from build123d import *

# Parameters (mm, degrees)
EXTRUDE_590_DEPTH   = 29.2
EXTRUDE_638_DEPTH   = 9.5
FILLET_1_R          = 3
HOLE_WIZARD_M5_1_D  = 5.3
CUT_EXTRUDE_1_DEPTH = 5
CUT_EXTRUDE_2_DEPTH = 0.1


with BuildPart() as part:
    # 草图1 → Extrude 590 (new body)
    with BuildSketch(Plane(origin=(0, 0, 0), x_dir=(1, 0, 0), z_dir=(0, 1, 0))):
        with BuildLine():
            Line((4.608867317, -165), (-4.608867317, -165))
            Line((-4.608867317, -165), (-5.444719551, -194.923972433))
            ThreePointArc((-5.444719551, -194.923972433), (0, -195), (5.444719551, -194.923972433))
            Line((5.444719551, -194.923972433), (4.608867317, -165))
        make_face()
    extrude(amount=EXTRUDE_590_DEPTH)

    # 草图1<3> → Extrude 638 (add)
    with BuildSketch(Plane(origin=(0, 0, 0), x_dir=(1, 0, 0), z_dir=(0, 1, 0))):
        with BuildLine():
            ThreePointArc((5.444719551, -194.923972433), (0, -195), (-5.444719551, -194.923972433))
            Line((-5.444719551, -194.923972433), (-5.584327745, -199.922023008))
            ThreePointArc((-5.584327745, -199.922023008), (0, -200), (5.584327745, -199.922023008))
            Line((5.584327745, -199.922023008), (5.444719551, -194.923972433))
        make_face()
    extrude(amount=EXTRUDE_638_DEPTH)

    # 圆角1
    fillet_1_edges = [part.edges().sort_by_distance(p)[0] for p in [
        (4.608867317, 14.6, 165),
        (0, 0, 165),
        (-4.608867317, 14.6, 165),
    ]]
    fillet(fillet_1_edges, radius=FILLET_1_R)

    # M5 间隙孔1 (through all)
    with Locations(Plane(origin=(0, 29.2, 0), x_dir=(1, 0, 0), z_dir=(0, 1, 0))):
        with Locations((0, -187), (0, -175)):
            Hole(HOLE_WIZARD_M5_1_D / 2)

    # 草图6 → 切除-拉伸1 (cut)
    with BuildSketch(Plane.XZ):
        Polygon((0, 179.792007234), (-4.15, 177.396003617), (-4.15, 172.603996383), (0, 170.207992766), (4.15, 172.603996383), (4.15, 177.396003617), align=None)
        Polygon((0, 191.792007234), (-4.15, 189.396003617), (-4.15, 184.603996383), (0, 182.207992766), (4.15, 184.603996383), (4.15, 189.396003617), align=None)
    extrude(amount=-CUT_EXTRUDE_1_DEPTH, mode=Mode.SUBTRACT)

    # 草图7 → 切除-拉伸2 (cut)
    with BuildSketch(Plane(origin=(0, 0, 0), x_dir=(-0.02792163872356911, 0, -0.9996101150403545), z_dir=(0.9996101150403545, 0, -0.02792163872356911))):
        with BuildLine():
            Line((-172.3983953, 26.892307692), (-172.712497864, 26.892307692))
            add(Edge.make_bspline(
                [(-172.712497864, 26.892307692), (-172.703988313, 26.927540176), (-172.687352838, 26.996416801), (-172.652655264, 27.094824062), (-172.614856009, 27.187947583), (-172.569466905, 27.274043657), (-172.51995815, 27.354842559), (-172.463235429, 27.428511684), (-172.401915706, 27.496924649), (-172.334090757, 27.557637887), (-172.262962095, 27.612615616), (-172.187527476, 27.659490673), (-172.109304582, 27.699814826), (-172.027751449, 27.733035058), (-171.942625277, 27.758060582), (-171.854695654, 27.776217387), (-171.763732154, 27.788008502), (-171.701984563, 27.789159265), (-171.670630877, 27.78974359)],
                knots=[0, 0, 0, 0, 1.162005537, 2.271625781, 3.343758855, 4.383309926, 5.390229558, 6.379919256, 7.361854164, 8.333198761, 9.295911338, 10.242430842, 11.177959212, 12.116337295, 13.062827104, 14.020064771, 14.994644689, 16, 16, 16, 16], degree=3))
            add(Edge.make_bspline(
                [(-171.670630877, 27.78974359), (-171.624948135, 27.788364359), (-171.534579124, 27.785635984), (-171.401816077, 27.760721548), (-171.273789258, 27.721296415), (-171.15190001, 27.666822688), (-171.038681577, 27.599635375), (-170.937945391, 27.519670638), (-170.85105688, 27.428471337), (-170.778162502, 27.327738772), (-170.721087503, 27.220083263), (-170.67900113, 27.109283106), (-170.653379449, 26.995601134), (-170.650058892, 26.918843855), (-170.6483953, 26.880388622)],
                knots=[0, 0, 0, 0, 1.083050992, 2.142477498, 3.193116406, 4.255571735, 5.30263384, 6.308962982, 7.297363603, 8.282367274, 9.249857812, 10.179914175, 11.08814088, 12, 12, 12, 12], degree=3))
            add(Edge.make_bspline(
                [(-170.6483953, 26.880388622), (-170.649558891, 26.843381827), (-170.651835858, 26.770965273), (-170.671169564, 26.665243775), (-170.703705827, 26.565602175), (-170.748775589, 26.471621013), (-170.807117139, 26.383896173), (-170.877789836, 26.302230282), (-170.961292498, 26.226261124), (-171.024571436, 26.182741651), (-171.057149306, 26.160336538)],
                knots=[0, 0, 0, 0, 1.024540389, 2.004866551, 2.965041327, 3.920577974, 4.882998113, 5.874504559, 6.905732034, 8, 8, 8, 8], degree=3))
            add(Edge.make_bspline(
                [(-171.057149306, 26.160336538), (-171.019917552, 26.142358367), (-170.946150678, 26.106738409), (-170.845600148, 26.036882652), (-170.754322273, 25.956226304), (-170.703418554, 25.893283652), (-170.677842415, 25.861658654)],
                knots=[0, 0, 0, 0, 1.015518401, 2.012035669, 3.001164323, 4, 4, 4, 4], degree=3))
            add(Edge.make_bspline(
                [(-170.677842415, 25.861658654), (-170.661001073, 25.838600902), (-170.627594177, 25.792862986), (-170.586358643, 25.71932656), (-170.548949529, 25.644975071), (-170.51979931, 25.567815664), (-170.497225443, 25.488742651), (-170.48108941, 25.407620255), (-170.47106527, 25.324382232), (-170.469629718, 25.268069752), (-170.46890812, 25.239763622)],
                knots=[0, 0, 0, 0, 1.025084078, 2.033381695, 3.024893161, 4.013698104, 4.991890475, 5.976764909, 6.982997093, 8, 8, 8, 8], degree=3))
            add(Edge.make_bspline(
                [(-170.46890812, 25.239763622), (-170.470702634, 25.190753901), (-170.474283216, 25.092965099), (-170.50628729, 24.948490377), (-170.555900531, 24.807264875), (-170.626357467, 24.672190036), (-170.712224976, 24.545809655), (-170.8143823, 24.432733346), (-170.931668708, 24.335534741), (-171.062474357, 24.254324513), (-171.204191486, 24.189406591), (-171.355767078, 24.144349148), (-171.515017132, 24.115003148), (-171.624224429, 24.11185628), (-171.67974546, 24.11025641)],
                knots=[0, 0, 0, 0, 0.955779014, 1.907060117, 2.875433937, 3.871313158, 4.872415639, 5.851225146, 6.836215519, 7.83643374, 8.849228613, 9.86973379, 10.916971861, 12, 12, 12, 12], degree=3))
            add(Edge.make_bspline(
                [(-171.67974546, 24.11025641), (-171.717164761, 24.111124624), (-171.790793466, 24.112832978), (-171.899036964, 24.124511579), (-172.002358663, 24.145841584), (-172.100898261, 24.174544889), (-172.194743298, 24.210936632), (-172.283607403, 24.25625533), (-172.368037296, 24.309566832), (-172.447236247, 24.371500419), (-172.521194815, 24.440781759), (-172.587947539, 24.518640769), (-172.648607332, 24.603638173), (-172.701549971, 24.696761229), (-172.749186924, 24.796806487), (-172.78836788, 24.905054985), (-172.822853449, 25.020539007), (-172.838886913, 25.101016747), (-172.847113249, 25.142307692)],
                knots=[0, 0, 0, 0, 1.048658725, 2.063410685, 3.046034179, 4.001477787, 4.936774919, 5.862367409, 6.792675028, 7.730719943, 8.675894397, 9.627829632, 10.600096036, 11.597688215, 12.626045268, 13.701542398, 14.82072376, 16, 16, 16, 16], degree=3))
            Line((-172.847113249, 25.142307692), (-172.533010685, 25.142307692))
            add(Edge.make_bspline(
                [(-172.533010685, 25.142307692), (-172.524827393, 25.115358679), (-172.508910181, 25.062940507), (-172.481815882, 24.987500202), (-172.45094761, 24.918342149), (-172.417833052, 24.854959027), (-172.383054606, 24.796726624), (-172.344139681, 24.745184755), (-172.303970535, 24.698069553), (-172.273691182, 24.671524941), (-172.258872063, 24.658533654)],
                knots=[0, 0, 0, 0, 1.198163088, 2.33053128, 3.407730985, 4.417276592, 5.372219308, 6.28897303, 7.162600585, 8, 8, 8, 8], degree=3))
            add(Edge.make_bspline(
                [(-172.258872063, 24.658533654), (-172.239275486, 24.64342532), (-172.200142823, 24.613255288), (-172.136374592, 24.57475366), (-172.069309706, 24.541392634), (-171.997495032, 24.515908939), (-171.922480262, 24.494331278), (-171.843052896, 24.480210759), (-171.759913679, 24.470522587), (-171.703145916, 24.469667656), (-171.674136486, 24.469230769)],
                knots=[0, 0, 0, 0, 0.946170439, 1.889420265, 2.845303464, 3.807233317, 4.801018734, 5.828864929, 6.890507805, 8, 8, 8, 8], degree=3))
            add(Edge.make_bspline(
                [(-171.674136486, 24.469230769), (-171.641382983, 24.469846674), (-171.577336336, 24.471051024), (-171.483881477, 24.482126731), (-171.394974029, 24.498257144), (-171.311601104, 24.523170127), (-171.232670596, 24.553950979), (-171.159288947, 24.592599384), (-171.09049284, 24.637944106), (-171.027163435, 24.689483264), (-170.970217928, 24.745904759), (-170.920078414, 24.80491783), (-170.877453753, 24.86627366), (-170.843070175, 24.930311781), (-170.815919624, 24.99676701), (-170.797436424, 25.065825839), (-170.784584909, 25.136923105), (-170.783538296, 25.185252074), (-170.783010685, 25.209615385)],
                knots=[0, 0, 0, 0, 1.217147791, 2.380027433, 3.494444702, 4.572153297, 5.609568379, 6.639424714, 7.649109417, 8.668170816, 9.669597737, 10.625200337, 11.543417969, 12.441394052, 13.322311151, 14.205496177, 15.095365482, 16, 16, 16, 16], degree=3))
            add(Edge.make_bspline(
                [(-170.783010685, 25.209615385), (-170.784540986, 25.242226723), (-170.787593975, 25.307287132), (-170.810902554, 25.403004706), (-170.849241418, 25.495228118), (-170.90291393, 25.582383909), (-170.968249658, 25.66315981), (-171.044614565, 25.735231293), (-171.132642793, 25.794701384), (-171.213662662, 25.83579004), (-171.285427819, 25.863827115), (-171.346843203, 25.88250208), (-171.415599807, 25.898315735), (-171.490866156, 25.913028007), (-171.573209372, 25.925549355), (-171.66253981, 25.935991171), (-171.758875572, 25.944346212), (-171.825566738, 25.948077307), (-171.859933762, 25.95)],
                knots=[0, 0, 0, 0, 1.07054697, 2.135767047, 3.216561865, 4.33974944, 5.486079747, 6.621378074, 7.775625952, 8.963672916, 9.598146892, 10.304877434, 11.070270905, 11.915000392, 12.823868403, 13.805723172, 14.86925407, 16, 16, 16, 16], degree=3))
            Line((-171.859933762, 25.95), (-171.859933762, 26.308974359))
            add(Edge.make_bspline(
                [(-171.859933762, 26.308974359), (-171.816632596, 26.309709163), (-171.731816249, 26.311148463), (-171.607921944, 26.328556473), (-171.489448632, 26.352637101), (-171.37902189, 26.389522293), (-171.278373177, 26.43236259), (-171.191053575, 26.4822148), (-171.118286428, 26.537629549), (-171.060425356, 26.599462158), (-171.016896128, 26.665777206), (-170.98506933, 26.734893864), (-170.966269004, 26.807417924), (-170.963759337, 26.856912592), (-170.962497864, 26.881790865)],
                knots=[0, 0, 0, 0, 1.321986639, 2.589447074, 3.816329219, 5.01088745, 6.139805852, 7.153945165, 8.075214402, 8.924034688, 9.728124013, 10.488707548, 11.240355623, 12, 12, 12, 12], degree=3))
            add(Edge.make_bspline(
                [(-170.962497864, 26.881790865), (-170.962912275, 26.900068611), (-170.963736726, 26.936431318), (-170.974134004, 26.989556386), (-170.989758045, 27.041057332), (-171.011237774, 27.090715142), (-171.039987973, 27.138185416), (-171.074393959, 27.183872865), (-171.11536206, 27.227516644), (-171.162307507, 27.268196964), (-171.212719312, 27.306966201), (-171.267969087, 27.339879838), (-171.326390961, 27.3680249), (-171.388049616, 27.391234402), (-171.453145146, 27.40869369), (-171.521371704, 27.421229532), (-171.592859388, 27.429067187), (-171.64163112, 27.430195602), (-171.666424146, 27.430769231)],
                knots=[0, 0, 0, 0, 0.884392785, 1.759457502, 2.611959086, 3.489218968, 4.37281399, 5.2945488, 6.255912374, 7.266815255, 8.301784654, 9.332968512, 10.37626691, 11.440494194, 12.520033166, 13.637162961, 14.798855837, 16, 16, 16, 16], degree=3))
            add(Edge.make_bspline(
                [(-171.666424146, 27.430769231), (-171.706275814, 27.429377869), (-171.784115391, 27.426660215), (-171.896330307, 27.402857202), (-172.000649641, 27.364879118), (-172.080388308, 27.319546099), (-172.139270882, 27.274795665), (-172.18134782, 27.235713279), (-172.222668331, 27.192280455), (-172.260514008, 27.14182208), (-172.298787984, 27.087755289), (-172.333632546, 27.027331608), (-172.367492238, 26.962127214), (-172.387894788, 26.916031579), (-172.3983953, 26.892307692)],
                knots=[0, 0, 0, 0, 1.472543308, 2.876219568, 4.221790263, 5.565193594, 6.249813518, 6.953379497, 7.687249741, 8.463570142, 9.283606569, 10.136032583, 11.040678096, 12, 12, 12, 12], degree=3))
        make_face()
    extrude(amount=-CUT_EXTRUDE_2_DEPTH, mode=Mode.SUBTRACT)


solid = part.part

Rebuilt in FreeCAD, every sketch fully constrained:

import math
import FreeCAD as App
import Part
import Sketcher
Q = App.Units.Quantity


def edges_at(feature, points):
    """Names of the edges that pass closest to the given points."""
    edges = feature.Shape.Edges
    near = lambda p: min(range(len(edges)), key=lambda i: edges[i].distToShape(Part.Vertex(*p))[0])
    return sorted({f"Edge{near(p) + 1}" for p in points})


def add_polygon(sketch, points):
    """Adds a closed chain of lines whose ends are joined by coincident constraints."""
    first, n = sketch.GeometryCount, len(points)
    for a, b in zip(points, points[1:] + points[:1]):
        sketch.addGeometry(Part.LineSegment(App.Vector(*a, 0), App.Vector(*b, 0)), False)
    for i in range(n):
        sketch.addConstraint(Sketcher.Constraint("Coincident", first + i, 2, first + (i + 1) % n, 1))

doc = App.newDocument("Part")
body = doc.addObject("PartDesign::Body", "Body")

sketch1 = body.newObject("Sketcher::SketchObject", "Sketch")
sketch1.AttachmentSupport = (doc.getObject("XZ_Plane"), [""])
sketch1.MapMode = "FlatFace"
sketch1.addGeometry([
    Part.LineSegment(App.Vector(4.608867, 165, 0), App.Vector(-4.608867, 165, 0)),
    Part.LineSegment(App.Vector(-4.608867, 165, 0), App.Vector(-5.44472, 194.923972, 0)),
    Part.ArcOfCircle(Part.Circle(App.Vector(0, 0, 0), App.Vector(0, 0, 1), 195), math.radians(88.4), math.radians(91.6)),
    Part.LineSegment(App.Vector(5.44472, 194.923972, 0), App.Vector(4.608867, 165, 0)),
], False)
sketch1.addConstraint([
    Sketcher.Constraint("Coincident", 0, 2, 1, 1),
    Sketcher.Constraint("Coincident", 1, 2, 2, 2),
    Sketcher.Constraint("Coincident", 2, 1, 3, 1),
    Sketcher.Constraint("Coincident", 3, 2, 0, 1),
    Sketcher.Constraint("Horizontal", 0),
    Sketcher.Constraint("Coincident", 2, 3, -1, 1),
    Sketcher.Constraint("Horizontal", 1, 2, 2, 1),
    Sketcher.Constraint("Equal", 1, 3),
    Sketcher.Constraint("Radius", 2, Q("195 mm")),
    Sketcher.Constraint("DistanceY", -1, 1, 0, 2, Q("165 mm")),
    Sketcher.Constraint("Angle", 1, Q("91.6 deg")),
    Sketcher.Constraint("DistanceX", 0, 2, 0, 1, Q("9.217735 mm")),
])
pad1 = body.newObject("PartDesign::Pad", "Pad")
pad1.Profile = sketch1
pad1.Length = 29.2
pad1.Reversed = True

sketch2 = body.newObject("Sketcher::SketchObject", "Sketch001")
sketch2.AttachmentSupport = (doc.getObject("XZ_Plane"), [""])
sketch2.MapMode = "FlatFace"
sketch2.addGeometry([
    Part.ArcOfCircle(Part.Circle(App.Vector(0, 0, 0), App.Vector(0, 0, 1), 195), math.radians(88.4), math.radians(91.6)),
    Part.LineSegment(App.Vector(-5.4, 194.9, 0), App.Vector(-5.6, 199.9, 0)),
    Part.ArcOfCircle(Part.Circle(App.Vector(0, 0, 0), App.Vector(0, 0, 1), 200), math.radians(88.4), math.radians(91.6)),
    Part.LineSegment(App.Vector(5.6, 199.9, 0), App.Vector(5.4, 194.9, 0)),
], False)
sketch2.addConstraint([
    Sketcher.Constraint("Coincident", 0, 2, 1, 1),
    Sketcher.Constraint("Coincident", 1, 2, 2, 2),
    Sketcher.Constraint("Coincident", 2, 1, 3, 1),
    Sketcher.Constraint("Coincident", 3, 2, 0, 1),
    Sketcher.Constraint("Coincident", 0, 3, -1, 1),
    Sketcher.Constraint("Coincident", 2, 3, -1, 1),
    Sketcher.Constraint("Horizontal", 1, 2, 2, 1),
    Sketcher.Constraint("Horizontal", 0, 2, 3, 2),
    Sketcher.Constraint("Radius", 0, Q("195 mm")),
    Sketcher.Constraint("Radius", 2, Q("200 mm")),
    Sketcher.Constraint("Angle", 1, Q("91.6 deg")),
    Sketcher.Constraint("DistanceX", 0, 2, -1, 1, Q("5.44472 mm")),
])
pad2 = body.newObject("PartDesign::Pad", "Pad001")
pad2.Profile = sketch2
pad2.Length = 9.5
pad2.Reversed = True
doc.recompute()

fillet = body.newObject("PartDesign::Fillet", "Fillet")
fillet.Base = (pad2, edges_at(pad2, [(4.609, 14.6, 165), (0, 0, 165), (-4.609, 14.6, 165)]))
fillet.Radius = 3

sketch3 = body.newObject("Sketcher::SketchObject", "Sketch002")
sketch3.AttachmentSupport = (doc.getObject("XZ_Plane"), [""])
sketch3.MapMode = "FlatFace"
sketch3.AttachmentOffset = App.Placement(App.Vector(0, 0, -29.2), App.Rotation())
sketch3.addGeometry([
    Part.Circle(App.Vector(0, 187, 0), App.Vector(0, 0, 1), 2.6),
    Part.Circle(App.Vector(0, 175, 0), App.Vector(0, 0, 1), 2.6),
], False)
sketch3.addConstraint([
    Sketcher.Constraint("Equal", 0, 1),
    Sketcher.Constraint("PointOnObject", 0, 3, -2),
    Sketcher.Constraint("PointOnObject", 1, 3, -2),
    Sketcher.Constraint("Diameter", 0, Q("5.3 mm")),
    Sketcher.Constraint("DistanceY", -1, 1, 0, 3, Q("187 mm")),
    Sketcher.Constraint("DistanceY", -1, 1, 1, 3, Q("175 mm")),
])
doc.recompute()
hole = body.newObject("PartDesign::Hole", "Hole")
hole.Profile = sketch3
hole.ThreadType = "None"
hole.Diameter = 5.3
hole.DepthType = "ThroughAll"
hole.Reversed = True

sketch4 = body.newObject("Sketcher::SketchObject", "Sketch003")
sketch4.AttachmentSupport = (doc.getObject("XZ_Plane"), [""])
sketch4.MapMode = "FlatFace"
add_polygon(sketch4, [(0, 179.8), (-4.2, 177.4), (-4.2, 172.6), (0, 170.2), (4.2, 172.6), (4.2, 177.4)])
add_polygon(sketch4, [(0, 191.8), (-4.2, 189.4), (-4.2, 184.6), (0, 182.2), (4.2, 184.6), (4.2, 189.4)])
sketch4.addConstraint([
    Sketcher.Constraint("Vertical", 1),
    Sketcher.Constraint("Vertical", 4),
    Sketcher.Constraint("Vertical", 7),
    Sketcher.Constraint("Vertical", 10),
    Sketcher.Constraint("Symmetric", 1, 2, 3, 2, -2),
    Sketcher.Constraint("Symmetric", 7, 2, 9, 2, -2),
    Sketcher.Constraint("PointOnObject", 2, 2, -2),
    Sketcher.Constraint("PointOnObject", 5, 2, -2),
    Sketcher.Constraint("PointOnObject", 8, 2, -2),
    Sketcher.Constraint("PointOnObject", 11, 2, -2),
    Sketcher.Constraint("Parallel", 0, 3),
    Sketcher.Constraint("Parallel", 2, 5),
    Sketcher.Constraint("Parallel", 3, 6),
    Sketcher.Constraint("Parallel", 5, 8),
    Sketcher.Constraint("Parallel", 8, 11),
    Sketcher.Constraint("Vertical", 1, 2, 6, 2),
    Sketcher.Constraint("Equal", 4, 7),
    Sketcher.Constraint("Angle", 0, Q("-150 deg")),
    Sketcher.Constraint("DistanceY", 0, 2, 6, 2, Q("12 mm")),
    Sketcher.Constraint("DistanceX", 1, 2, 3, 2, Q("8.3 mm")),
    Sketcher.Constraint("DistanceY", 1, 2, 1, 1, Q("4.792007 mm")),
    Sketcher.Constraint("DistanceY", -1, 1, 0, 2, Q("177.396004 mm")),
])
pocket1 = body.newObject("PartDesign::Pocket", "Pocket")
pocket1.Profile = sketch4
pocket1.Length = 5

sketch5 = body.newObject("Sketcher::SketchObject", "Sketch004")
sketch5.Placement = App.Placement(App.Vector(0, 0, 0), App.Rotation(App.Vector(-0.027921639, 0, -0.999610115), App.Vector(0, 1, 0), App.Vector(0.999610115, 0, -0.027921639), "ZXY"))
sketch5.addGeometry([
    Part.LineSegment(App.Vector(-172.712498, 26.892308, 0), App.Vector(-172.398395, 26.892308, 0)),
    Part.BSplineCurve([App.Vector(-171.666424, 27.430769, 0), App.Vector(-171.706276, 27.429378, 0), App.Vector(-171.784115, 27.42666, 0), App.Vector(-171.89633, 27.402857, 0), App.Vector(-172.00065, 27.364879, 0), App.Vector(-172.080388, 27.319546, 0), App.Vector(-172.139271, 27.274796, 0), App.Vector(-172.181348, 27.235713, 0), App.Vector(-172.222668, 27.19228, 0), App.Vector(-172.260514, 27.141822, 0), App.Vector(-172.298788, 27.087755, 0), App.Vector(-172.333633, 27.027332, 0), App.Vector(-172.367492, 26.962127, 0), App.Vector(-172.387895, 26.916032, 0), App.Vector(-172.398395, 26.892308, 0)], [4, 1, 1, 1, 1, 1, 1, 1, 1, 1, 1, 1, 4], [0, 1.472543308, 2.876219568, 4.221790263, 5.565193594, 6.249813518, 6.953379497, 7.687249741, 8.463570142, 9.283606569, 10.136032583, 11.040678096, 12], False, 3, [1, 1, 1, 1, 1, 1, 1, 1, 1, 1, 1, 1, 1, 1, 1], False),
    Part.BSplineCurve([App.Vector(-170.962498, 26.881791, 0), App.Vector(-170.962912, 26.900069, 0), App.Vector(-170.963737, 26.936431, 0), App.Vector(-170.974134, 26.989556, 0), App.Vector(-170.989758, 27.041057, 0), App.Vector(-171.011238, 27.090715, 0), App.Vector(-171.039988, 27.138185, 0), App.Vector(-171.074394, 27.183873, 0), App.Vector(-171.115362, 27.227517, 0), App.Vector(-171.162307, 27.268197, 0), App.Vector(-171.212719, 27.306966, 0), App.Vector(-171.267969, 27.33988, 0), App.Vector(-171.326391, 27.368025, 0), App.Vector(-171.38805, 27.391234, 0), App.Vector(-171.453145, 27.408694, 0), App.Vector(-171.521372, 27.42123, 0), App.Vector(-171.592859, 27.429067, 0), App.Vector(-171.641631, 27.430196, 0), App.Vector(-171.666424, 27.430769, 0)], [4, 1, 1, 1, 1, 1, 1, 1, 1, 1, 1, 1, 1, 1, 1, 1, 4], [0, 0.884392785, 1.759457502, 2.611959086, 3.489218968, 4.37281399, 5.2945488, 6.255912374, 7.266815255, 8.301784654, 9.332968512, 10.37626691, 11.440494194, 12.520033166, 13.637162961, 14.798855837, 16], False, 3, [1, 1, 1, 1, 1, 1, 1, 1, 1, 1, 1, 1, 1, 1, 1, 1, 1, 1, 1], False),
    Part.BSplineCurve([App.Vector(-171.859934, 26.308974, 0), App.Vector(-171.816633, 26.309709, 0), App.Vector(-171.731816, 26.311148, 0), App.Vector(-171.607922, 26.328556, 0), App.Vector(-171.489449, 26.352637, 0), App.Vector(-171.379022, 26.389522, 0), App.Vector(-171.278373, 26.432363, 0), App.Vector(-171.191054, 26.482215, 0), App.Vector(-171.118286, 26.53763, 0), App.Vector(-171.060425, 26.599462, 0), App.Vector(-171.016896, 26.665777, 0), App.Vector(-170.985069, 26.734894, 0), App.Vector(-170.966269, 26.807418, 0), App.Vector(-170.963759, 26.856913, 0), App.Vector(-170.962498, 26.881791, 0)], [4, 1, 1, 1, 1, 1, 1, 1, 1, 1, 1, 1, 4], [0, 1.321986639, 2.589447074, 3.816329219, 5.01088745, 6.139805852, 7.153945165, 8.075214402, 8.924034688, 9.728124013, 10.488707548, 11.240355623, 12], False, 3, [1, 1, 1, 1, 1, 1, 1, 1, 1, 1, 1, 1, 1, 1, 1], False),
    Part.LineSegment(App.Vector(-171.859934, 26.308974, 0), App.Vector(-171.859934, 25.95, 0)),
    Part.BSplineCurve([App.Vector(-170.783011, 25.209615, 0), App.Vector(-170.784541, 25.242227, 0), App.Vector(-170.787594, 25.307287, 0), App.Vector(-170.810903, 25.403005, 0), App.Vector(-170.849241, 25.495228, 0), App.Vector(-170.902914, 25.582384, 0), App.Vector(-170.96825, 25.66316, 0), App.Vector(-171.044615, 25.735231, 0), App.Vector(-171.132643, 25.794701, 0), App.Vector(-171.213663, 25.83579, 0), App.Vector(-171.285428, 25.863827, 0), App.Vector(-171.346843, 25.882502, 0), App.Vector(-171.4156, 25.898316, 0), App.Vector(-171.490866, 25.913028, 0), App.Vector(-171.573209, 25.925549, 0), App.Vector(-171.66254, 25.935991, 0), App.Vector(-171.758876, 25.944346, 0), App.Vector(-171.825567, 25.948077, 0), App.Vector(-171.859934, 25.95, 0)], [4, 1, 1, 1, 1, 1, 1, 1, 1, 1, 1, 1, 1, 1, 1, 1, 4], [0, 1.07054697, 2.135767047, 3.216561865, 4.33974944, 5.486079747, 6.621378074, 7.775625952, 8.963672916, 9.598146892, 10.304877434, 11.070270905, 11.915000392, 12.823868403, 13.805723172, 14.86925407, 16], False, 3, [1, 1, 1, 1, 1, 1, 1, 1, 1, 1, 1, 1, 1, 1, 1, 1, 1, 1, 1], False),
    Part.BSplineCurve([App.Vector(-171.674136, 24.469231, 0), App.Vector(-171.641383, 24.469847, 0), App.Vector(-171.577336, 24.471051, 0), App.Vector(-171.483881, 24.482127, 0), App.Vector(-171.394974, 24.498257, 0), App.Vector(-171.311601, 24.52317, 0), App.Vector(-171.232671, 24.553951, 0), App.Vector(-171.159289, 24.592599, 0), App.Vector(-171.090493, 24.637944, 0), App.Vector(-171.027163, 24.689483, 0), App.Vector(-170.970218, 24.745905, 0), App.Vector(-170.920078, 24.804918, 0), App.Vector(-170.877454, 24.866274, 0), App.Vector(-170.84307, 24.930312, 0), App.Vector(-170.81592, 24.996767, 0), App.Vector(-170.797436, 25.065826, 0), App.Vector(-170.784585, 25.136923, 0), App.Vector(-170.783538, 25.185252, 0), App.Vector(-170.783011, 25.209615, 0)], [4, 1, 1, 1, 1, 1, 1, 1, 1, 1, 1, 1, 1, 1, 1, 1, 4], [0, 1.217147791, 2.380027433, 3.494444702, 4.572153297, 5.609568379, 6.639424714, 7.649109417, 8.668170816, 9.669597737, 10.625200337, 11.543417969, 12.441394052, 13.322311151, 14.205496177, 15.095365482, 16], False, 3, [1, 1, 1, 1, 1, 1, 1, 1, 1, 1, 1, 1, 1, 1, 1, 1, 1, 1, 1], False),
    Part.BSplineCurve([App.Vector(-172.258872, 24.658534, 0), App.Vector(-172.239275, 24.643425, 0), App.Vector(-172.200143, 24.613255, 0), App.Vector(-172.136375, 24.574754, 0), App.Vector(-172.06931, 24.541393, 0), App.Vector(-171.997495, 24.515909, 0), App.Vector(-171.92248, 24.494331, 0), App.Vector(-171.843053, 24.480211, 0), App.Vector(-171.759914, 24.470523, 0), App.Vector(-171.703146, 24.469668, 0), App.Vector(-171.674136, 24.469231, 0)], [4, 1, 1, 1, 1, 1, 1, 1, 4], [0, 0.946170439, 1.889420265, 2.845303464, 3.807233317, 4.801018734, 5.828864929, 6.890507805, 8], False, 3, [1, 1, 1, 1, 1, 1, 1, 1, 1, 1, 1], False),
    Part.BSplineCurve([App.Vector(-172.533011, 25.142308, 0), App.Vector(-172.524827, 25.115359, 0), App.Vector(-172.50891, 25.062941, 0), App.Vector(-172.481816, 24.9875, 0), App.Vector(-172.450948, 24.918342, 0), App.Vector(-172.417833, 24.854959, 0), App.Vector(-172.383055, 24.796727, 0), App.Vector(-172.34414, 24.745185, 0), App.Vector(-172.303971, 24.69807, 0), App.Vector(-172.273691, 24.671525, 0), App.Vector(-172.258872, 24.658534, 0)], [4, 1, 1, 1, 1, 1, 1, 1, 4], [0, 1.198163088, 2.33053128, 3.407730985, 4.417276592, 5.372219308, 6.28897303, 7.162600585, 8], False, 3, [1, 1, 1, 1, 1, 1, 1, 1, 1, 1, 1], False),
    Part.LineSegment(App.Vector(-172.533011, 25.142308, 0), App.Vector(-172.847113, 25.142308, 0)),
    Part.BSplineCurve([App.Vector(-171.679745, 24.110256, 0), App.Vector(-171.717165, 24.111125, 0), App.Vector(-171.790793, 24.112833, 0), App.Vector(-171.899037, 24.124512, 0), App.Vector(-172.002359, 24.145842, 0), App.Vector(-172.100898, 24.174545, 0), App.Vector(-172.194743, 24.210937, 0), App.Vector(-172.283607, 24.256255, 0), App.Vector(-172.368037, 24.309567, 0), App.Vector(-172.447236, 24.3715, 0), App.Vector(-172.521195, 24.440782, 0), App.Vector(-172.587948, 24.518641, 0), App.Vector(-172.648607, 24.603638, 0), App.Vector(-172.70155, 24.696761, 0), App.Vector(-172.749187, 24.796806, 0), App.Vector(-172.788368, 24.905055, 0), App.Vector(-172.822853, 25.020539, 0), App.Vector(-172.838887, 25.101017, 0), App.Vector(-172.847113, 25.142308, 0)], [4, 1, 1, 1, 1, 1, 1, 1, 1, 1, 1, 1, 1, 1, 1, 1, 4], [0, 1.048658725, 2.063410685, 3.046034179, 4.001477787, 4.936774919, 5.862367409, 6.792675028, 7.730719943, 8.675894397, 9.627829632, 10.600096036, 11.597688215, 12.626045268, 13.701542398, 14.82072376, 16], False, 3, [1, 1, 1, 1, 1, 1, 1, 1, 1, 1, 1, 1, 1, 1, 1, 1, 1, 1, 1], False),
    Part.BSplineCurve([App.Vector(-170.468908, 25.239764, 0), App.Vector(-170.470703, 25.190754, 0), App.Vector(-170.474283, 25.092965, 0), App.Vector(-170.506287, 24.94849, 0), App.Vector(-170.555901, 24.807265, 0), App.Vector(-170.626357, 24.67219, 0), App.Vector(-170.712225, 24.54581, 0), App.Vector(-170.814382, 24.432733, 0), App.Vector(-170.931669, 24.335535, 0), App.Vector(-171.062474, 24.254325, 0), App.Vector(-171.204191, 24.189407, 0), App.Vector(-171.355767, 24.144349, 0), App.Vector(-171.515017, 24.115003, 0), App.Vector(-171.624224, 24.111856, 0), App.Vector(-171.679745, 24.110256, 0)], [4, 1, 1, 1, 1, 1, 1, 1, 1, 1, 1, 1, 4], [0, 0.955779014, 1.907060117, 2.875433937, 3.871313158, 4.872415639, 5.851225146, 6.836215519, 7.83643374, 8.849228613, 9.86973379, 10.916971861, 12], False, 3, [1, 1, 1, 1, 1, 1, 1, 1, 1, 1, 1, 1, 1, 1, 1], False),
    Part.BSplineCurve([App.Vector(-170.677842, 25.861659, 0), App.Vector(-170.661001, 25.838601, 0), App.Vector(-170.627594, 25.792863, 0), App.Vector(-170.586359, 25.719327, 0), App.Vector(-170.54895, 25.644975, 0), App.Vector(-170.519799, 25.567816, 0), App.Vector(-170.497225, 25.488743, 0), App.Vector(-170.481089, 25.40762, 0), App.Vector(-170.471065, 25.324382, 0), App.Vector(-170.46963, 25.26807, 0), App.Vector(-170.468908, 25.239764, 0)], [4, 1, 1, 1, 1, 1, 1, 1, 4], [0, 1.025084078, 2.033381695, 3.024893161, 4.013698104, 4.991890475, 5.976764909, 6.982997093, 8], False, 3, [1, 1, 1, 1, 1, 1, 1, 1, 1, 1, 1], False),
    Part.BSplineCurve([App.Vector(-171.057149, 26.160337, 0), App.Vector(-171.019918, 26.142358, 0), App.Vector(-170.946151, 26.106738, 0), App.Vector(-170.8456, 26.036883, 0), App.Vector(-170.754322, 25.956226, 0), App.Vector(-170.703419, 25.893284, 0), App.Vector(-170.677842, 25.861659, 0)], [4, 1, 1, 1, 4], [0, 1.015518401, 2.012035669, 3.001164323, 4], False, 3, [1, 1, 1, 1, 1, 1, 1], False),
    Part.BSplineCurve([App.Vector(-170.648395, 26.880389, 0), App.Vector(-170.649559, 26.843382, 0), App.Vector(-170.651836, 26.770965, 0), App.Vector(-170.67117, 26.665244, 0), App.Vector(-170.703706, 26.565602, 0), App.Vector(-170.748776, 26.471621, 0), App.Vector(-170.807117, 26.383896, 0), App.Vector(-170.87779, 26.30223, 0), App.Vector(-170.961292, 26.226261, 0), App.Vector(-171.024571, 26.182742, 0), App.Vector(-171.057149, 26.160337, 0)], [4, 1, 1, 1, 1, 1, 1, 1, 4], [0, 1.024540389, 2.004866551, 2.965041327, 3.920577974, 4.882998113, 5.874504559, 6.905732034, 8], False, 3, [1, 1, 1, 1, 1, 1, 1, 1, 1, 1, 1], False),
    Part.BSplineCurve([App.Vector(-171.670631, 27.789744, 0), App.Vector(-171.624948, 27.788364, 0), App.Vector(-171.534579, 27.785636, 0), App.Vector(-171.401816, 27.760722, 0), App.Vector(-171.273789, 27.721296, 0), App.Vector(-171.1519, 27.666823, 0), App.Vector(-171.038682, 27.599635, 0), App.Vector(-170.937945, 27.519671, 0), App.Vector(-170.851057, 27.428471, 0), App.Vector(-170.778162, 27.327739, 0), App.Vector(-170.721087, 27.220083, 0), App.Vector(-170.679001, 27.109283, 0), App.Vector(-170.653379, 26.995601, 0), App.Vector(-170.650059, 26.918844, 0), App.Vector(-170.648395, 26.880389, 0)], [4, 1, 1, 1, 1, 1, 1, 1, 1, 1, 1, 1, 4], [0, 1.083050992, 2.142477498, 3.193116406, 4.255571735, 5.30263384, 6.308962982, 7.297363603, 8.282367274, 9.249857812, 10.179914175, 11.08814088, 12], False, 3, [1, 1, 1, 1, 1, 1, 1, 1, 1, 1, 1, 1, 1, 1, 1], False),
    Part.BSplineCurve([App.Vector(-172.712498, 26.892308, 0), App.Vector(-172.703988, 26.92754, 0), App.Vector(-172.687353, 26.996417, 0), App.Vector(-172.652655, 27.094824, 0), App.Vector(-172.614856, 27.187948, 0), App.Vector(-172.569467, 27.274044, 0), App.Vector(-172.519958, 27.354843, 0), App.Vector(-172.463235, 27.428512, 0), App.Vector(-172.401916, 27.496925, 0), App.Vector(-172.334091, 27.557638, 0), App.Vector(-172.262962, 27.612616, 0), App.Vector(-172.187527, 27.659491, 0), App.Vector(-172.109305, 27.699815, 0), App.Vector(-172.027751, 27.733035, 0), App.Vector(-171.942625, 27.758061, 0), App.Vector(-171.854696, 27.776217, 0), App.Vector(-171.763732, 27.788008, 0), App.Vector(-171.701985, 27.789159, 0), App.Vector(-171.670631, 27.789744, 0)], [4, 1, 1, 1, 1, 1, 1, 1, 1, 1, 1, 1, 1, 1, 1, 1, 4], [0, 1.162005537, 2.271625781, 3.343758855, 4.383309926, 5.390229558, 6.379919256, 7.361854164, 8.333198761, 9.295911338, 10.242430842, 11.177959212, 12.116337295, 13.062827104, 14.020064771, 14.994644689, 16], False, 3, [1, 1, 1, 1, 1, 1, 1, 1, 1, 1, 1, 1, 1, 1, 1, 1, 1, 1, 1], False),
], False)
sketch5.addConstraint([
    Sketcher.Constraint("Block", 1),
    Sketcher.Constraint("Block", 2),
    Sketcher.Constraint("Block", 3),
    Sketcher.Constraint("Block", 5),
    Sketcher.Constraint("Block", 6),
    Sketcher.Constraint("Block", 7),
    Sketcher.Constraint("Block", 8),
    Sketcher.Constraint("Block", 10),
    Sketcher.Constraint("Block", 11),
    Sketcher.Constraint("Block", 12),
    Sketcher.Constraint("Block", 13),
    Sketcher.Constraint("Block", 14),
    Sketcher.Constraint("Block", 15),
    Sketcher.Constraint("Block", 16),
    Sketcher.Constraint("Coincident", 0, 2, 1, 2),
    Sketcher.Constraint("Coincident", 3, 1, 4, 1),
    Sketcher.Constraint("Coincident", 4, 2, 5, 2),
    Sketcher.Constraint("Coincident", 8, 1, 9, 1),
    Sketcher.Constraint("Coincident", 9, 2, 10, 2),
    Sketcher.Constraint("Coincident", 16, 1, 0, 1),
])
pocket2 = body.newObject("PartDesign::Pocket", "Pocket001")
pocket2.Profile = sketch5
pocket2.Length = 0.1

doc.recompute()
